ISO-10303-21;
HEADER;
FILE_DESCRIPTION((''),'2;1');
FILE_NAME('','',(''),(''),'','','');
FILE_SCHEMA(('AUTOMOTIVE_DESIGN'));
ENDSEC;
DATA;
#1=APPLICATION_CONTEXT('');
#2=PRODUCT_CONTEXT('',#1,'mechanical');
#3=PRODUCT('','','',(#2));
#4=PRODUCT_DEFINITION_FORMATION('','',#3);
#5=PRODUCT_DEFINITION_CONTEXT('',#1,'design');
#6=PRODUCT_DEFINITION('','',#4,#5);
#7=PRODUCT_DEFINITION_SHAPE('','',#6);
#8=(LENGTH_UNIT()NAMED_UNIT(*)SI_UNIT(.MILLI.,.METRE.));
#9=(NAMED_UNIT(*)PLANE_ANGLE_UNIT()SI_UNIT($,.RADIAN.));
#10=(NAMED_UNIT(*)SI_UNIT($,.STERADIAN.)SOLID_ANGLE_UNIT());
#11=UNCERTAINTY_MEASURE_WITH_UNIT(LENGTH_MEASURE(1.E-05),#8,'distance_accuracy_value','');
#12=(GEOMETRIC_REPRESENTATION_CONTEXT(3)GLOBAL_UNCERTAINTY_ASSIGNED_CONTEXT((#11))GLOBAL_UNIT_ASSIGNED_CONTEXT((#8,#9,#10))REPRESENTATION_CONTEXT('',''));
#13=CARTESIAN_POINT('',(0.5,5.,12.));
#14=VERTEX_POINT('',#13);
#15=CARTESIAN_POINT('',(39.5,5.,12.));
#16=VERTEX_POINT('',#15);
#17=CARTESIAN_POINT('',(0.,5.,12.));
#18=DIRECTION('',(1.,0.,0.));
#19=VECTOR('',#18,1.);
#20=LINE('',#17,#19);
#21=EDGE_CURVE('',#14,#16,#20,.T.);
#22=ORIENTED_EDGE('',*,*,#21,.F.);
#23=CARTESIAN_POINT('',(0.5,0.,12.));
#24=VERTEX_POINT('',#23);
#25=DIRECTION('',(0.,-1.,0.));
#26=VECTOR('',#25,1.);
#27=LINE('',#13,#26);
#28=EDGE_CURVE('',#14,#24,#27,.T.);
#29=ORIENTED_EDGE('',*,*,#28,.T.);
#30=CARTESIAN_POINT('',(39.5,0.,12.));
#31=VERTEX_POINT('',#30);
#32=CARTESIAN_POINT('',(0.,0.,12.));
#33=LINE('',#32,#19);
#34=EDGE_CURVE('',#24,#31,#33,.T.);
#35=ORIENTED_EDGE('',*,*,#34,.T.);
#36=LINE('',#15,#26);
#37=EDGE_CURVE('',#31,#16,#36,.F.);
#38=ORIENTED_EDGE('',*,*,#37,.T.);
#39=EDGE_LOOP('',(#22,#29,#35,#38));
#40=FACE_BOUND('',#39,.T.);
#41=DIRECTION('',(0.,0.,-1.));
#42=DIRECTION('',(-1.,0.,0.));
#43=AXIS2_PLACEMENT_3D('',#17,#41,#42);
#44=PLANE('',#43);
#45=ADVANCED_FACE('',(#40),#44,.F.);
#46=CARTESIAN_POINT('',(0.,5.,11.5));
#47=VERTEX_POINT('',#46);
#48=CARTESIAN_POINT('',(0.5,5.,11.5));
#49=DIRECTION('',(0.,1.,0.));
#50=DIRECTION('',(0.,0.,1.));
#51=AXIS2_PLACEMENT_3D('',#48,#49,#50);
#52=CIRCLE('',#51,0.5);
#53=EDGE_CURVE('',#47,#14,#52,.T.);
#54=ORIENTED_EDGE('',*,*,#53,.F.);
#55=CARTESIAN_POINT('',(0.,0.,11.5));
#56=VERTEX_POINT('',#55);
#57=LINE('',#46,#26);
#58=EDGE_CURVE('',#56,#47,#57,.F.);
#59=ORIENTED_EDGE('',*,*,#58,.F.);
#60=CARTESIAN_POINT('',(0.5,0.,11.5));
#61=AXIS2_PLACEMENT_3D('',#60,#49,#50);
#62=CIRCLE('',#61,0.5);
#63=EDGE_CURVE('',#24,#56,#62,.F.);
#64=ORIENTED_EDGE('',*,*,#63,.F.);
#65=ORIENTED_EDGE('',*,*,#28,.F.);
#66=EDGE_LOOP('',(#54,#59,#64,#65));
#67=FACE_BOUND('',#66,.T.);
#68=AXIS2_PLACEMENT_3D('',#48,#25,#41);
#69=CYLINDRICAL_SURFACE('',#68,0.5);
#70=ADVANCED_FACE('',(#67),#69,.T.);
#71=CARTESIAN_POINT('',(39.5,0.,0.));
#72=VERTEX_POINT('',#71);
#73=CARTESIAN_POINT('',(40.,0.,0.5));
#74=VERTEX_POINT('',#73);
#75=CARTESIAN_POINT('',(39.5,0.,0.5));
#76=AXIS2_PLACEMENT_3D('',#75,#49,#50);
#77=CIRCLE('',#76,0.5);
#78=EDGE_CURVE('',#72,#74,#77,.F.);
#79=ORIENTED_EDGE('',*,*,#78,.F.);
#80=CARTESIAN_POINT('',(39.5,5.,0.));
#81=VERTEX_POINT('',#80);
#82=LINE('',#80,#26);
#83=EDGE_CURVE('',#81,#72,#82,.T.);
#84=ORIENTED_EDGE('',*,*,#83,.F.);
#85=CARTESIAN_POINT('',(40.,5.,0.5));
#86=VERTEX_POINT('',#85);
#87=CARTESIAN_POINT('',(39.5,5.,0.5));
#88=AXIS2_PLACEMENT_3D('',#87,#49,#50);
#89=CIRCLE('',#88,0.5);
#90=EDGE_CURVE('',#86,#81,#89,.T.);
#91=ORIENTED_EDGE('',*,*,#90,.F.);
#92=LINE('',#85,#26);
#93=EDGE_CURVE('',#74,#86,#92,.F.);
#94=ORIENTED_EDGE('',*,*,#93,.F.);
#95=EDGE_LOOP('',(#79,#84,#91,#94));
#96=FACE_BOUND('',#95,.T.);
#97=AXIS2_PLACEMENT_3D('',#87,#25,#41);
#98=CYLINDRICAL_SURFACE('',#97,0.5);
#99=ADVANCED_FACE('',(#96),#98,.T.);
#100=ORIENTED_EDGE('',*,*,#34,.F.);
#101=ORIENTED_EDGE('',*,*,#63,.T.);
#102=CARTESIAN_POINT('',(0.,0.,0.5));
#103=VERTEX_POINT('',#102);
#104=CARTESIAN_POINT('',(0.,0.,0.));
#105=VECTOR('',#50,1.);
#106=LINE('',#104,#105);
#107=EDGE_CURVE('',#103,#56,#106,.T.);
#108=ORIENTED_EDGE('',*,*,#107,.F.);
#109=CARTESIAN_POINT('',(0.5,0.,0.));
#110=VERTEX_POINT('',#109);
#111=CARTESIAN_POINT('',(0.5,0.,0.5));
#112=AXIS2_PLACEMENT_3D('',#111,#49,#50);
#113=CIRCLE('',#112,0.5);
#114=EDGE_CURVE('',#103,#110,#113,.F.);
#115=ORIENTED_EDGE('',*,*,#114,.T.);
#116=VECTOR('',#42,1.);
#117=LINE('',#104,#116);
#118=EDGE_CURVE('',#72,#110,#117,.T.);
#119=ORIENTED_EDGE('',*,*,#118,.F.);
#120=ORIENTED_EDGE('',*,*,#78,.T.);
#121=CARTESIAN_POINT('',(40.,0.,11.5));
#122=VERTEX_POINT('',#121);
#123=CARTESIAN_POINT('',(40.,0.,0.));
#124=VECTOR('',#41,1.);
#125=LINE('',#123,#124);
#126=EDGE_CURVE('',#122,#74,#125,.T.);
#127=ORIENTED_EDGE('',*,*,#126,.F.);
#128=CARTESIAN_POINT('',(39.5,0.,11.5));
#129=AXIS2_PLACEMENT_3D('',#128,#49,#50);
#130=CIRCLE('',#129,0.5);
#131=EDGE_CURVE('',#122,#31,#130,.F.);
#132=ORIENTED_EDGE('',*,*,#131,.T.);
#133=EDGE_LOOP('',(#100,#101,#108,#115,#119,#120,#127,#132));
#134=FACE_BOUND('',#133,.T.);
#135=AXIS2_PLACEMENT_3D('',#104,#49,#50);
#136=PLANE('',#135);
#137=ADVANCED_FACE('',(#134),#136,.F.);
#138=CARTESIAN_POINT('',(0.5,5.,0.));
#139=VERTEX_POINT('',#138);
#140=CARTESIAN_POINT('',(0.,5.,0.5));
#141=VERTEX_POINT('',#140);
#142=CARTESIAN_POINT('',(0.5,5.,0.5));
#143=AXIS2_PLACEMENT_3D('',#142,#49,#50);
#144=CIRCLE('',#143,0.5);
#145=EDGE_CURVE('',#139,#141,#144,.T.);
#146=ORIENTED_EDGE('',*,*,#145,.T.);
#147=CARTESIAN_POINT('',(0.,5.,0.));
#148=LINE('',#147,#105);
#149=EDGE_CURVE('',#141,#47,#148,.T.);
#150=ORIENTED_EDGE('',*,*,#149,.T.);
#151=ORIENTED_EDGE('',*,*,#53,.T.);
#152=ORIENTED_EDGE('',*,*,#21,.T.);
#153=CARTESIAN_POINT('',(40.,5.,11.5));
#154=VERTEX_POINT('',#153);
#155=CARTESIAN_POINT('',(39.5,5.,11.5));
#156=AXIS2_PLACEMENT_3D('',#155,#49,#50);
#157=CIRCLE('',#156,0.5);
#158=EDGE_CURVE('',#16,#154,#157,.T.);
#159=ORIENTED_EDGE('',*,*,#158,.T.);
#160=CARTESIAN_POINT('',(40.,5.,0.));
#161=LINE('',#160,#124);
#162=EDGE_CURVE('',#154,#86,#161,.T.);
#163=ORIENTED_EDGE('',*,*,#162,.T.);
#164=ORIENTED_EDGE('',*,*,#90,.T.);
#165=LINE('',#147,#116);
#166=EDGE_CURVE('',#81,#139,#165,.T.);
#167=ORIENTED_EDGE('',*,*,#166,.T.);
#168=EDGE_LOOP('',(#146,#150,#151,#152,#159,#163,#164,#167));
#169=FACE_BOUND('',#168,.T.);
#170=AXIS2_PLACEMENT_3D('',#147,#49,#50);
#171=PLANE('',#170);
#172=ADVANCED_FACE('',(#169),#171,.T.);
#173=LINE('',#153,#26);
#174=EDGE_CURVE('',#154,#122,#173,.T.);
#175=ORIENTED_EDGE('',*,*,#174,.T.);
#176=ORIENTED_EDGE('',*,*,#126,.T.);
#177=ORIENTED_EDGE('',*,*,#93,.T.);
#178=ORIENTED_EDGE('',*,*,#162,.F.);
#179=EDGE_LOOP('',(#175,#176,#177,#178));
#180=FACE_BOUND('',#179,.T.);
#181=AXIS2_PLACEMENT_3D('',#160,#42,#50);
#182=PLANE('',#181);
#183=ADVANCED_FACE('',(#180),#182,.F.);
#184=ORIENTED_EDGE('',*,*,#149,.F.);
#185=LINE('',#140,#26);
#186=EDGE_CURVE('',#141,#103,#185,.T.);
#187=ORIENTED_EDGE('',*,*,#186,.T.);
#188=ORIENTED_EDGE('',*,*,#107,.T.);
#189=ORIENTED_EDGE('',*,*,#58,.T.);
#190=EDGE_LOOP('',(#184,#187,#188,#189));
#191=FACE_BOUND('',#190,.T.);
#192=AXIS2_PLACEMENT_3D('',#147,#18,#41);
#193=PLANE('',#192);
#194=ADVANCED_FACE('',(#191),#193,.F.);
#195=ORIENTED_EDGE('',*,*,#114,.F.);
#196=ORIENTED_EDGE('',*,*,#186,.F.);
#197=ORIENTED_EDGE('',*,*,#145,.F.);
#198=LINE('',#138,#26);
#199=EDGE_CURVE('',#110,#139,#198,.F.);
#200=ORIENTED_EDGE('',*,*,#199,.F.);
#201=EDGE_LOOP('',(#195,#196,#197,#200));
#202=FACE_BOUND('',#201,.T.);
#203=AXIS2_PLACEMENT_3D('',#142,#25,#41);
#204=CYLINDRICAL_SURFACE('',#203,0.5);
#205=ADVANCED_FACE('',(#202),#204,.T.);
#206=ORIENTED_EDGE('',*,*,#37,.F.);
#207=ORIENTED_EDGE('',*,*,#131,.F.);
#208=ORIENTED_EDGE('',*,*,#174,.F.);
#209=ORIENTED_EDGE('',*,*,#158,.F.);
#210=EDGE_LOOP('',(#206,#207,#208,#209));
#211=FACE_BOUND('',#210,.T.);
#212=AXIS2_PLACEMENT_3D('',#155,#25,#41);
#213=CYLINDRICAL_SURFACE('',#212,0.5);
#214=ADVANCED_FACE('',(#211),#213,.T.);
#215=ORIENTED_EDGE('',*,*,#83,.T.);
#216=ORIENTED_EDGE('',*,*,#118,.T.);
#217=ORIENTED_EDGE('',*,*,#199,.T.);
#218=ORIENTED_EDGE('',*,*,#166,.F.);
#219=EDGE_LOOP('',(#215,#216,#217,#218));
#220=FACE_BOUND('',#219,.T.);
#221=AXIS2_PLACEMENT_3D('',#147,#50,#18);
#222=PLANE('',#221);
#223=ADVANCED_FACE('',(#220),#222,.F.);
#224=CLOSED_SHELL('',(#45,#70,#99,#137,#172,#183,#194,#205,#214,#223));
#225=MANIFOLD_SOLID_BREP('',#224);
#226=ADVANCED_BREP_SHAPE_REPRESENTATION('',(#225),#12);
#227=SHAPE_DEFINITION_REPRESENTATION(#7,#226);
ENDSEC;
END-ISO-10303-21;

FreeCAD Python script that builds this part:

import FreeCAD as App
import Part
import Sketcher

V = App.Vector
Q = App.Units.Quantity


def edges_at(feature, points):
    """Names of the edges that pass closest to the given points."""
    edges = feature.Shape.Edges
    near = lambda p: min(range(len(edges)), key=lambda i: edges[i].distToShape(Part.Vertex(*p))[0])
    return sorted({f"Edge{near(p) + 1}" for p in points})

doc = App.newDocument("Part")
body = doc.addObject("PartDesign::Body", "Body")

sketch1 = body.newObject("Sketcher::SketchObject", "Sketch")
sketch1.AttachmentSupport = (doc.getObject("XZ_Plane"), [""])
sketch1.MapMode = "FlatFace"
sketch1.addGeometry(Part.LineSegment(V(0, 0, 0), V(0, 12, 0)), False)
sketch1.addGeometry(Part.LineSegment(V(0, 12, 0), V(40, 12, 0)), False)
sketch1.addGeometry(Part.LineSegment(V(40, 12, 0), V(40, 0, 0)), False)
sketch1.addGeometry(Part.LineSegment(V(40, 0, 0), V(0, 0, 0)), False)
sketch1.addConstraint(Sketcher.Constraint("Coincident", 0, 2, 1, 1))
sketch1.addConstraint(Sketcher.Constraint("Coincident", 1, 2, 2, 1))
sketch1.addConstraint(Sketcher.Constraint("Coincident", 2, 2, 3, 1))
sketch1.addConstraint(Sketcher.Constraint("Coincident", 3, 2, 0, 1))
sketch1.addConstraint(Sketcher.Constraint("Vertical", 0))
sketch1.addConstraint(Sketcher.Constraint("Horizontal", 1))
sketch1.addConstraint(Sketcher.Constraint("Vertical", 2))
sketch1.addConstraint(Sketcher.Constraint("Horizontal", 3))
sketch1.addConstraint(Sketcher.Constraint("Coincident", 3, 2, -1, 1))
sketch1.addConstraint(Sketcher.Constraint("DistanceX", 1, 1, 1, 2, Q("40 mm")))
sketch1.addConstraint(Sketcher.Constraint("DistanceY", 0, 1, 0, 2, Q("12 mm")))
pad1 = body.newObject("PartDesign::Pad", "Pad")
pad1.Profile = sketch1
pad1.Length = 5
pad1.Reversed = True
doc.recompute()

fillet = body.newObject("PartDesign::Fillet", "Fillet")
fillet.Base = (pad1, edges_at(pad1, [
    (0, 2.5, 0),
    (40, 2.5, 0),
    (40, 2.5, 12),
    (0, 2.5, 12),
]))
fillet.Radius = 0.5

doc.recompute()
